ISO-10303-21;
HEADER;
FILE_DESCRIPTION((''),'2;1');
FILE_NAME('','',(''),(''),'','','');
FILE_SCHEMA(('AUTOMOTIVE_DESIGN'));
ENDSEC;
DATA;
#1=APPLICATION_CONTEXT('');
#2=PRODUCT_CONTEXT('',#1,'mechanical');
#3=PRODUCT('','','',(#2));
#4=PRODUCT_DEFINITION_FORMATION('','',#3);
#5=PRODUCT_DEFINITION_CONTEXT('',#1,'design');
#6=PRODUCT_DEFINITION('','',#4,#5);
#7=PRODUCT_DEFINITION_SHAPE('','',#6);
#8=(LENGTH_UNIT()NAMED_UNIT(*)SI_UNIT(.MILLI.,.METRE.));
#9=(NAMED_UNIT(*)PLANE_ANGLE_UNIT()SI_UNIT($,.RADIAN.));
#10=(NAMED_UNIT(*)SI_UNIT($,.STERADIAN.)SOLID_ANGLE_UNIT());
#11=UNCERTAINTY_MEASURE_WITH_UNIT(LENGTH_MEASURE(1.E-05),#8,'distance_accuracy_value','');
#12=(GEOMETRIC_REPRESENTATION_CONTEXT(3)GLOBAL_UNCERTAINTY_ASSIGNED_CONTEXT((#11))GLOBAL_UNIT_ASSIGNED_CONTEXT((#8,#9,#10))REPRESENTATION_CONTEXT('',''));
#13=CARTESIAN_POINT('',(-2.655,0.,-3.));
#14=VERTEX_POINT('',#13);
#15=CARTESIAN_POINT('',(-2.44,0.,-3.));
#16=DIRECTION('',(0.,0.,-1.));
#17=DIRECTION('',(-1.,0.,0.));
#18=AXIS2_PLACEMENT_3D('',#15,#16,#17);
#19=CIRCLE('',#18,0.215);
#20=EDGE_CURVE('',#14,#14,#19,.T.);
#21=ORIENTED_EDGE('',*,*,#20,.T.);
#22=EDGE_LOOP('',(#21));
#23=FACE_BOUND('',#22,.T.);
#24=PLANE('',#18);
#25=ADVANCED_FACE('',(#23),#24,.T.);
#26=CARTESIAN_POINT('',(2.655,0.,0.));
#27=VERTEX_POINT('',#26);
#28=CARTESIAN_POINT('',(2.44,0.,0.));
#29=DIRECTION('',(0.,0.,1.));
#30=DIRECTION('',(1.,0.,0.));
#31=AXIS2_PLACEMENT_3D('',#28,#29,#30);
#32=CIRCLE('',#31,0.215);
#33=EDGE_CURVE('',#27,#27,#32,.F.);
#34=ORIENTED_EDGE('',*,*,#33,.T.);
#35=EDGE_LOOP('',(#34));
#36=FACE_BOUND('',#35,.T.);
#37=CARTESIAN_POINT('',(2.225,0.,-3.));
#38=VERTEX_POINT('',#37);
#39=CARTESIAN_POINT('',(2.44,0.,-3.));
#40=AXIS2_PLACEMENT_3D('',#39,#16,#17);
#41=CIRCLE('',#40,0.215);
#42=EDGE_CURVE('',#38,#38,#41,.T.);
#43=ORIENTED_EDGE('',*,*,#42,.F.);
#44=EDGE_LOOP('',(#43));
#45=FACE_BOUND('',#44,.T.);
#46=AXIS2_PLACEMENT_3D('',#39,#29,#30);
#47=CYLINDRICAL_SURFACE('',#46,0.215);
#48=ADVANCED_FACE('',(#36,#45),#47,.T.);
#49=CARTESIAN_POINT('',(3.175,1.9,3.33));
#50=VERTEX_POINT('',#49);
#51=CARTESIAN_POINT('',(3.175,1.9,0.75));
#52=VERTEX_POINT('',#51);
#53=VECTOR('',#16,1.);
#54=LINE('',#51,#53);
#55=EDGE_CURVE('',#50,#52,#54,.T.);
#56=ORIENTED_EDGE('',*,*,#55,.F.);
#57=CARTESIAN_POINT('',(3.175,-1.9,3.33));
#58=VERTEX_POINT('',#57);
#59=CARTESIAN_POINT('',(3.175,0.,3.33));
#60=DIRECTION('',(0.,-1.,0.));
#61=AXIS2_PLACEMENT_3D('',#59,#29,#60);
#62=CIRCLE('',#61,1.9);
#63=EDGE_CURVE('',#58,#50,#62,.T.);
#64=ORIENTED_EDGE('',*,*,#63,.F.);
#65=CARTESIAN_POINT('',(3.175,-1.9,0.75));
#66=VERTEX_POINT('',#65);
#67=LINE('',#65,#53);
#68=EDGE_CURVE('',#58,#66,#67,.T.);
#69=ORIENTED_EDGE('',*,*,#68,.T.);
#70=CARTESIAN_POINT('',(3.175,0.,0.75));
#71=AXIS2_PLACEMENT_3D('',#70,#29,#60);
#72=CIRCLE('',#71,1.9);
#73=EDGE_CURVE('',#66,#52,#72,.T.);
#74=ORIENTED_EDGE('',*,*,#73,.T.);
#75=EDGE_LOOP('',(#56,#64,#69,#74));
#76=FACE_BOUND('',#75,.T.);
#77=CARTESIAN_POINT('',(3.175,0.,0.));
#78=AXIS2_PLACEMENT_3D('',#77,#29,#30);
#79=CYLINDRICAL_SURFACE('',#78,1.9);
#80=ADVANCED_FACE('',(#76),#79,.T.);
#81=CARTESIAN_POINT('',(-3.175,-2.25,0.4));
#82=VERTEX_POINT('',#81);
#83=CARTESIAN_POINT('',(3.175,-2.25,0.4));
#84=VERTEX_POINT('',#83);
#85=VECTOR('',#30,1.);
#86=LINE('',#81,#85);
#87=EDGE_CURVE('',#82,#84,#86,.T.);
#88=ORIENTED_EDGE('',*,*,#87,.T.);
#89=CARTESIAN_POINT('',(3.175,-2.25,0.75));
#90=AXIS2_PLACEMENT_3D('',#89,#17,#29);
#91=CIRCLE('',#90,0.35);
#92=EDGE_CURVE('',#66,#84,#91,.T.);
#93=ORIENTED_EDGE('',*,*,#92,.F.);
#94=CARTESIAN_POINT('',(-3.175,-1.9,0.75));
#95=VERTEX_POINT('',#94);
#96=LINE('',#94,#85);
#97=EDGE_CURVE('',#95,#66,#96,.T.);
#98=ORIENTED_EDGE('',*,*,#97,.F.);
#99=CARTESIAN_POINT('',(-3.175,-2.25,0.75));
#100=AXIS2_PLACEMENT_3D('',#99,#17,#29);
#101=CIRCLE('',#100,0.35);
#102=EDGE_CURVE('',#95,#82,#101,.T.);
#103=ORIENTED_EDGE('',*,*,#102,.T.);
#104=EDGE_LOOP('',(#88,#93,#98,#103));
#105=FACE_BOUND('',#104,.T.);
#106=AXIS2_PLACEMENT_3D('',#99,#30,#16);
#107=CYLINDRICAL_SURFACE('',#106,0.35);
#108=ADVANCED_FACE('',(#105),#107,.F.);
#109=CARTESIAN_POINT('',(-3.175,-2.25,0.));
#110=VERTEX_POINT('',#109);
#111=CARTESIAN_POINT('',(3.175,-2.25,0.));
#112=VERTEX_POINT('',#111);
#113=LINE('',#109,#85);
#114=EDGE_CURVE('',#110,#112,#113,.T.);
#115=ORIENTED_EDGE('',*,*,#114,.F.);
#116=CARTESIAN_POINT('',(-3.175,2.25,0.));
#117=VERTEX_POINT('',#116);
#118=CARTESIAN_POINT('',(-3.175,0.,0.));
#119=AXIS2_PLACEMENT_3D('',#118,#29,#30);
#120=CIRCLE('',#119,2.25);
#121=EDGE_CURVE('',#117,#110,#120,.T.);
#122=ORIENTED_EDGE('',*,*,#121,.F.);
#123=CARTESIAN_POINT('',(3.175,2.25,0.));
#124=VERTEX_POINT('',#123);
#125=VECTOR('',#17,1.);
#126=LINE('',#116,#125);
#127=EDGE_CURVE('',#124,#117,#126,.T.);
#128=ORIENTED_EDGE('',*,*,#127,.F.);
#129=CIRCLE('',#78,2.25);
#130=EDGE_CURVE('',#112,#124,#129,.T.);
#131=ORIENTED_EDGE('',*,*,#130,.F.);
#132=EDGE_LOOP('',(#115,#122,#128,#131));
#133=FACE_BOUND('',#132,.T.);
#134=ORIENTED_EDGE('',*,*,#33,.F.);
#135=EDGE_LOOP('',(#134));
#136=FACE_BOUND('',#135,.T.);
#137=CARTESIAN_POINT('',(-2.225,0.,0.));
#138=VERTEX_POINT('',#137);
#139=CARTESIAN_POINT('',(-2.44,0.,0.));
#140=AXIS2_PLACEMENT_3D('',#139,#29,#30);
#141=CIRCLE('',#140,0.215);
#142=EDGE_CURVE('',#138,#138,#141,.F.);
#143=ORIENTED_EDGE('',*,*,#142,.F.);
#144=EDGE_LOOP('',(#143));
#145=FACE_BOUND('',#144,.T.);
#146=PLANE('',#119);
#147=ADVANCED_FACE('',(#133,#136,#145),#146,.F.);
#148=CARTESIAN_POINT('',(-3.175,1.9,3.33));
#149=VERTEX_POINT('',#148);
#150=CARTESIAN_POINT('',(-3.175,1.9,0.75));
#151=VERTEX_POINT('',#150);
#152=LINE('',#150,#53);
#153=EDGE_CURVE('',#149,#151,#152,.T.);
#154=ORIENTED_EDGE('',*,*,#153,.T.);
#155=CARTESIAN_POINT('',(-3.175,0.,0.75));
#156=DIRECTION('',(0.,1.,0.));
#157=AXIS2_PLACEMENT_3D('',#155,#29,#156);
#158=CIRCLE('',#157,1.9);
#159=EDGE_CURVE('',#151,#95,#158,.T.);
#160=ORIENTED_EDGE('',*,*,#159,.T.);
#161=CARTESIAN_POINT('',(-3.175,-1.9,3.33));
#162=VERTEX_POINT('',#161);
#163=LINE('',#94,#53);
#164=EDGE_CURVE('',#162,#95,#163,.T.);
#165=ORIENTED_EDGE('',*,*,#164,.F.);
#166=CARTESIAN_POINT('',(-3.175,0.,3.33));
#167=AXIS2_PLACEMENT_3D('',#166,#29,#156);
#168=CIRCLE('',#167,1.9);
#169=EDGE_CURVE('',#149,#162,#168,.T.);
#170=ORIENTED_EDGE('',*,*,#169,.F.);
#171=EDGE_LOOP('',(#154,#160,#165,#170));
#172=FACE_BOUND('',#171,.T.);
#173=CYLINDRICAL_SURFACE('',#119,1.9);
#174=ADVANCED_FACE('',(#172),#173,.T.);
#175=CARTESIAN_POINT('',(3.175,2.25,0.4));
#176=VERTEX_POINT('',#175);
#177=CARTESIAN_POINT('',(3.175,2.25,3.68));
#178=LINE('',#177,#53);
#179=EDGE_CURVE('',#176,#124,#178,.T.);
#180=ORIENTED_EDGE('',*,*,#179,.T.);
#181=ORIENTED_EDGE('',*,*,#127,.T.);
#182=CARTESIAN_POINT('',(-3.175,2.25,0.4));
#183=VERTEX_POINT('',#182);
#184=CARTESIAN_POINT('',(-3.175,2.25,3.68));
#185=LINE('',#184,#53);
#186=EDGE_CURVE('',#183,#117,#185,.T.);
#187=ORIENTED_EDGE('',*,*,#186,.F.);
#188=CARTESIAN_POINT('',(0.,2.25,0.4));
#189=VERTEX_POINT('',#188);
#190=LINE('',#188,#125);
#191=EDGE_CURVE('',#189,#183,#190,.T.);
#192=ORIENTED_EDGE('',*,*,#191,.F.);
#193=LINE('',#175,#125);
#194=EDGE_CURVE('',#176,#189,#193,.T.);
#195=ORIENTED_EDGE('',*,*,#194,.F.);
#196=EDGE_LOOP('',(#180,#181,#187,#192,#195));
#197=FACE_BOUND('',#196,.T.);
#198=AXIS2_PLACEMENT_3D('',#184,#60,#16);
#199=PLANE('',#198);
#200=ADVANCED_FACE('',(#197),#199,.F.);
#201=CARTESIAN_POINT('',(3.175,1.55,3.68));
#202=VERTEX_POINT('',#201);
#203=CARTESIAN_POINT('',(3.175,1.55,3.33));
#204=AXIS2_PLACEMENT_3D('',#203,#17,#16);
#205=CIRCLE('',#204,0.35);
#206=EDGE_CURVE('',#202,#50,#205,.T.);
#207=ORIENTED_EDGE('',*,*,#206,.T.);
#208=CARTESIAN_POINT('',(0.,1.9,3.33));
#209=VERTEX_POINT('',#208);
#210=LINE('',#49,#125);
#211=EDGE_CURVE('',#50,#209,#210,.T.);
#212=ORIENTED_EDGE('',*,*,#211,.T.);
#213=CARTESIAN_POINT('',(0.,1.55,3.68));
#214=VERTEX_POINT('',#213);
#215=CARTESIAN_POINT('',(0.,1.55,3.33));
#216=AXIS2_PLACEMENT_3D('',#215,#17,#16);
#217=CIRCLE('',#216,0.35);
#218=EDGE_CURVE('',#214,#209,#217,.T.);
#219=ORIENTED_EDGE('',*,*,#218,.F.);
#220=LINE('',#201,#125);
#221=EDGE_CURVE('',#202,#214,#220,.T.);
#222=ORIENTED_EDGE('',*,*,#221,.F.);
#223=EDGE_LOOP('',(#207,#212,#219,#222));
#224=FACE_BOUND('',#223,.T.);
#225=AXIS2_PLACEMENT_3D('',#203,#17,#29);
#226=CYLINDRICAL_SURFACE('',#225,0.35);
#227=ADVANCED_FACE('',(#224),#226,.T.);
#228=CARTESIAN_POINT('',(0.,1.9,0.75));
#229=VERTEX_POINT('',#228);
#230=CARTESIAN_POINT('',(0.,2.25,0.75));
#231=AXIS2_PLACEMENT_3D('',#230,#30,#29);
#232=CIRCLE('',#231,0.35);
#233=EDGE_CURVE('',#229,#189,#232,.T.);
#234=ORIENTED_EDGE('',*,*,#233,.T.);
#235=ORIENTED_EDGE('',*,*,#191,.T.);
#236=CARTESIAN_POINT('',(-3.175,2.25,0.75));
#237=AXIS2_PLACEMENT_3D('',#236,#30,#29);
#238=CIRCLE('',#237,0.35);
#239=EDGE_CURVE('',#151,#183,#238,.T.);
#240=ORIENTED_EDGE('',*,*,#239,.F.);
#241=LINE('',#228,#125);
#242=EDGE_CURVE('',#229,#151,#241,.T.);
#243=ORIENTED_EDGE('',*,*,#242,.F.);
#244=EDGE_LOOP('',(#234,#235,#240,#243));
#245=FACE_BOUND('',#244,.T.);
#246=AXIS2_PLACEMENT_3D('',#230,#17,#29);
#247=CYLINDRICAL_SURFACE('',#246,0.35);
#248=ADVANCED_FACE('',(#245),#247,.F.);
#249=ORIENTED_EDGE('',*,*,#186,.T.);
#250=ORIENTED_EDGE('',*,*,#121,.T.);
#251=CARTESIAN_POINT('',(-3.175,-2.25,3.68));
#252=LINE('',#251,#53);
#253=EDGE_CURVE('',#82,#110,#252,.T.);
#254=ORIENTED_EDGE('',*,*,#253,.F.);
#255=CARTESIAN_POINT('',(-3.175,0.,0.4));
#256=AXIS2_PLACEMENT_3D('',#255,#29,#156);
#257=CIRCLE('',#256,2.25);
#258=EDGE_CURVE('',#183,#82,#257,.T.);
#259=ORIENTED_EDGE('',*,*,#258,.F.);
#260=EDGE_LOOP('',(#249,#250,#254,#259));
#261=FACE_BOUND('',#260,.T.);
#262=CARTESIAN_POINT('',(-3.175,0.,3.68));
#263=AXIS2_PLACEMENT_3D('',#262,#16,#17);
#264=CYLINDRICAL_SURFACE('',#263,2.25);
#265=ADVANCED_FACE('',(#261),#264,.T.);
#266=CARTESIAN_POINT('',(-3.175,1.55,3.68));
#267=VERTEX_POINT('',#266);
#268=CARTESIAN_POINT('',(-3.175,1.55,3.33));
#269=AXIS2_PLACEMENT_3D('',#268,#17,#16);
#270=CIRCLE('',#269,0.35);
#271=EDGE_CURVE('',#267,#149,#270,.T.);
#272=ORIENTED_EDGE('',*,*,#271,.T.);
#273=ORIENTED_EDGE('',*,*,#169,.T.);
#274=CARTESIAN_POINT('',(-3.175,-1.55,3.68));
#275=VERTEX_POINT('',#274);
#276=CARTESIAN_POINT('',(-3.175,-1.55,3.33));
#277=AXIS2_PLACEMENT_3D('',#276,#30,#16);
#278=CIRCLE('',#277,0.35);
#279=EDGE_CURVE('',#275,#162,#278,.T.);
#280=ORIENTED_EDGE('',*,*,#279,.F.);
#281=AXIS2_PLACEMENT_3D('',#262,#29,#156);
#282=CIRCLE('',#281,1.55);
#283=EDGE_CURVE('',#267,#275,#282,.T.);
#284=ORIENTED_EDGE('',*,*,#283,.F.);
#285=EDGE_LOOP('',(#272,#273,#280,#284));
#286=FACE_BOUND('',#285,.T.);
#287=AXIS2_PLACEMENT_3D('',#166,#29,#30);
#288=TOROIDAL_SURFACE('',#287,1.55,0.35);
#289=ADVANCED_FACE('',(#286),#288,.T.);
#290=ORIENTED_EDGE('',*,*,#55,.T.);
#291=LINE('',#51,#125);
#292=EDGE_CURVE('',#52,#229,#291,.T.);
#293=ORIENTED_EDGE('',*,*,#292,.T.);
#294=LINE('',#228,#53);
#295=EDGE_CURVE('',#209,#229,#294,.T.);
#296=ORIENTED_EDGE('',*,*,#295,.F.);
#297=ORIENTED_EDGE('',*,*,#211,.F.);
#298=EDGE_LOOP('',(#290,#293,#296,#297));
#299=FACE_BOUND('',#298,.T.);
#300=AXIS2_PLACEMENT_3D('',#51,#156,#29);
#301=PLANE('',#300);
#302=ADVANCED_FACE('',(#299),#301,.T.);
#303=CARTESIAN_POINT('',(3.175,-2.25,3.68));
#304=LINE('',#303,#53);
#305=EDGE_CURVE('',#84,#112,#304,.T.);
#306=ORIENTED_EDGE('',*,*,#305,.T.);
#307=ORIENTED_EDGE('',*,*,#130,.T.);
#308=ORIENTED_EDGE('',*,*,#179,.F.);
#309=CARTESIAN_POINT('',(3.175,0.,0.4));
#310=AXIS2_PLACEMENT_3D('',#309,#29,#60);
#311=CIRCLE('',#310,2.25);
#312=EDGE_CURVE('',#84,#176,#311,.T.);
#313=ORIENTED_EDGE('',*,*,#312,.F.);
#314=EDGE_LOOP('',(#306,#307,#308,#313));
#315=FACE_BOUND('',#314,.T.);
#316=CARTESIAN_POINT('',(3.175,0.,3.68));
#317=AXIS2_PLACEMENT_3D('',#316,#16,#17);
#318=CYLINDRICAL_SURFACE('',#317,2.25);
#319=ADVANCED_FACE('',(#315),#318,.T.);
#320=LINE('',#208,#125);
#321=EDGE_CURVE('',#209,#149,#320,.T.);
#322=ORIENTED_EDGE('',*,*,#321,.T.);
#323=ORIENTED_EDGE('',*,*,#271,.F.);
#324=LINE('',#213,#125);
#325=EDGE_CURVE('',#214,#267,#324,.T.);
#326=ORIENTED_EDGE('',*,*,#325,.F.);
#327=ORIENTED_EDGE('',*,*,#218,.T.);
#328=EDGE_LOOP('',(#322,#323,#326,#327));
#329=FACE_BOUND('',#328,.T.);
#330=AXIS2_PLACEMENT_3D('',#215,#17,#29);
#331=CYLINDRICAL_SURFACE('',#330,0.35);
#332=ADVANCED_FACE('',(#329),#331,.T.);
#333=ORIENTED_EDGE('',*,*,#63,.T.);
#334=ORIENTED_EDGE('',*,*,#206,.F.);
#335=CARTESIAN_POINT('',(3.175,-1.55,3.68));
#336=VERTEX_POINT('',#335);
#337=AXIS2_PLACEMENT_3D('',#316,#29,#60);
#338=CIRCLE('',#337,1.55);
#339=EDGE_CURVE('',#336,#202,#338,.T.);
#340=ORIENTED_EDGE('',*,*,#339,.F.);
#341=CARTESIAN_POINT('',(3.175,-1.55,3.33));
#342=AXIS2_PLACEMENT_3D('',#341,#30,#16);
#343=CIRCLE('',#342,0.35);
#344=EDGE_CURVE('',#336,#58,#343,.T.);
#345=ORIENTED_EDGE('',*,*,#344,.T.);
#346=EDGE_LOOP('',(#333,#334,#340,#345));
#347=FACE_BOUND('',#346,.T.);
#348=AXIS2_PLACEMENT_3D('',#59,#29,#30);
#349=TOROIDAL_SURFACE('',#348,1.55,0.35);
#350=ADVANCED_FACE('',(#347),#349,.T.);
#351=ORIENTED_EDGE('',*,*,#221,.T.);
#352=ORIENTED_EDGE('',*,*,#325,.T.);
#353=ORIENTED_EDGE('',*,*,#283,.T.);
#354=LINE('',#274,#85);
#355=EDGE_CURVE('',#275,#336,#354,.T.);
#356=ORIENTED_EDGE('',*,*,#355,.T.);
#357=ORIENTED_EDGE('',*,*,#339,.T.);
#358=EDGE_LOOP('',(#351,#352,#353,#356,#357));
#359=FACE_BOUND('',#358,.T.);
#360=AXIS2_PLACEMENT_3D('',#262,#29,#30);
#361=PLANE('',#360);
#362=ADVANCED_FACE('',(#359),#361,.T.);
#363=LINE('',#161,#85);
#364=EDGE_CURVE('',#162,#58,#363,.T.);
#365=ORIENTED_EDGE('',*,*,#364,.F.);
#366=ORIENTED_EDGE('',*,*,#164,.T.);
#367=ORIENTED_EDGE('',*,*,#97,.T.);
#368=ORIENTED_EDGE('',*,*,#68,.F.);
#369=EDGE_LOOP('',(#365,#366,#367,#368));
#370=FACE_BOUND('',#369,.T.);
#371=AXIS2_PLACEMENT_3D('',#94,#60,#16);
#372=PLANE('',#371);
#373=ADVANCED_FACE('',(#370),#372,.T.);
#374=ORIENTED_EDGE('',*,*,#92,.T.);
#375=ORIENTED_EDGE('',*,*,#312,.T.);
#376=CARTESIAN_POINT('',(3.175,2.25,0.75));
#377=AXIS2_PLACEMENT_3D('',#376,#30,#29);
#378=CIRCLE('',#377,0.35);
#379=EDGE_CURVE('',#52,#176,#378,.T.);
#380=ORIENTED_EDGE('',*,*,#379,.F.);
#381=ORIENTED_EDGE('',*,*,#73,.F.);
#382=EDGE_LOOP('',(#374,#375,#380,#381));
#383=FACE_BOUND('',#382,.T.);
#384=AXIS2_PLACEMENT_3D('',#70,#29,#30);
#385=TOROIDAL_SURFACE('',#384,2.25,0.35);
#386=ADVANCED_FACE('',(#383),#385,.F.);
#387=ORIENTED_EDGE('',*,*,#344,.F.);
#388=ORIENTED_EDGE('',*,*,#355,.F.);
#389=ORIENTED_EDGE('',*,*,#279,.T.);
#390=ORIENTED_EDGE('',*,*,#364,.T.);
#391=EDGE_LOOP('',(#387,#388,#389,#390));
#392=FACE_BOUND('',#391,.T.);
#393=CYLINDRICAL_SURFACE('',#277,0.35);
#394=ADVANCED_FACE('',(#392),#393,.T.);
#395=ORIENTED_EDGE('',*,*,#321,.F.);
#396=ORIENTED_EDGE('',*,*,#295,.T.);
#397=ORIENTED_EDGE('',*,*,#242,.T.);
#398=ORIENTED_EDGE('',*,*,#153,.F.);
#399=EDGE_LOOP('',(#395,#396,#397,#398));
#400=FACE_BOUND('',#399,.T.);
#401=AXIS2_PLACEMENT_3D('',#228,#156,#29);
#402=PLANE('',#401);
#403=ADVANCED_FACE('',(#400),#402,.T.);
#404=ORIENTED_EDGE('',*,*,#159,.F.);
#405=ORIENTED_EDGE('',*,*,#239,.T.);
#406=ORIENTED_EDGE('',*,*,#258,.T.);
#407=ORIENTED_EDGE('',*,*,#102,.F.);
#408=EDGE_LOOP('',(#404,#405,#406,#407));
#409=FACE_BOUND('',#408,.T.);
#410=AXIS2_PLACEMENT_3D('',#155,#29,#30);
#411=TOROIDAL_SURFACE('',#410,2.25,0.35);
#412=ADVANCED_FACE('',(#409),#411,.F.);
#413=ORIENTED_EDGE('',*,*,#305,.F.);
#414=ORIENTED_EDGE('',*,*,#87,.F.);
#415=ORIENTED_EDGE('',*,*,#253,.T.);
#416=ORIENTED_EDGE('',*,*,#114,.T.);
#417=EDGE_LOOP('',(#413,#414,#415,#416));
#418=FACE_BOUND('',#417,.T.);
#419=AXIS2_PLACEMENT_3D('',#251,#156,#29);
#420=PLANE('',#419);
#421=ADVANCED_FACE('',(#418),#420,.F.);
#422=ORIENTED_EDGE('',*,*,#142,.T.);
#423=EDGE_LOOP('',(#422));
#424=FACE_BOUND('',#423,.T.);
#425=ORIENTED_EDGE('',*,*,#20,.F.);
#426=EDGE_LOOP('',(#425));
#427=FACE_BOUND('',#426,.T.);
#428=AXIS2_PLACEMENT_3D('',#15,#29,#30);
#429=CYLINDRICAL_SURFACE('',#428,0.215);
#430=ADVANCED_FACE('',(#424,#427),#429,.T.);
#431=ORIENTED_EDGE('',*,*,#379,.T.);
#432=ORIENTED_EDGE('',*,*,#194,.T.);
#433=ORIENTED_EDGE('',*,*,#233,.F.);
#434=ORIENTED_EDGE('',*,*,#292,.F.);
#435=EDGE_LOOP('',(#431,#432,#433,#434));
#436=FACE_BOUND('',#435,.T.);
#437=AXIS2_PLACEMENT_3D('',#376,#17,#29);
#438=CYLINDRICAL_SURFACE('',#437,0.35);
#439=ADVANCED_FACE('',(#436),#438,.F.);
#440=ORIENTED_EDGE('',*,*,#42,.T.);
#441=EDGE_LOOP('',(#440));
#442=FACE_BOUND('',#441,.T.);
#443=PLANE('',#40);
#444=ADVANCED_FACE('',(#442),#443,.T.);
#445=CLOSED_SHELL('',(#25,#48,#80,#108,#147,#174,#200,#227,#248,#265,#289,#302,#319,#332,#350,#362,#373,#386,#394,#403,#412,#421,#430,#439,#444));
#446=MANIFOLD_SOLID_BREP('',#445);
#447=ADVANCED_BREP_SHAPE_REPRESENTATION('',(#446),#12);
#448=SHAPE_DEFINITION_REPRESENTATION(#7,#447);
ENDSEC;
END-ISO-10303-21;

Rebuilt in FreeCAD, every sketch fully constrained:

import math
import FreeCAD as App
import Part
import Sketcher

doc = App.newDocument("Part")
body = doc.addObject("PartDesign::Body", "Body")

sketch1 = body.newObject("Sketcher::SketchObject", "Sketch")
sketch1.AttachmentSupport = (doc.getObject("XY_Plane"), [""])
sketch1.MapMode = "FlatFace"
sketch1.addGeometry(Part.LineSegment(App.Vector(3.175, 2.25, 0), App.Vector(-3.175, 2.25, 0)), False)
sketch1.addGeometry(Part.ArcOfCircle(Part.Circle(App.Vector(-3.175, 0, 0), App.Vector(0, 0, 1), 2.25), math.radians(90), math.radians(270)), False)
sketch1.addGeometry(Part.LineSegment(App.Vector(-3.175, -2.25, 0), App.Vector(3.175, -2.25, 0)), False)
sketch1.addGeometry(Part.ArcOfCircle(Part.Circle(App.Vector(3.175, 0, 0), App.Vector(0, 0, 1), 2.25), math.radians(-90), math.radians(90)), False)
sketch1.addConstraint(Sketcher.Constraint("Tangent", 0, 2, 1, 1))
sketch1.addConstraint(Sketcher.Constraint("Tangent", 1, 2, 2, 1))
sketch1.addConstraint(Sketcher.Constraint("Tangent", 2, 2, 3, 1))
sketch1.addConstraint(Sketcher.Constraint("Tangent", 3, 2, 0, 1))
sketch1.addConstraint(Sketcher.Constraint("Horizontal", 0))
sketch1.addConstraint(Sketcher.Constraint("Horizontal", 2))
sketch1.addConstraint(Sketcher.Constraint("Symmetric", 1, 3, 3, 3, -1, 1))
sketch1.addConstraint(Sketcher.Constraint("Radius", 1, 2.25))
sketch1.addConstraint(Sketcher.Constraint("DistanceX", 0, 2, 0, 1, 6.35))
pad1 = body.newObject("PartDesign::Pad", "Pad")
pad1.Profile = sketch1
pad1.Length = 3.68

sketch2 = body.newObject("Sketcher::SketchObject", "Sketch001")
sketch2.AttachmentSupport = (doc.getObject("YZ_Plane"), [""])
sketch2.MapMode = "FlatFace"
sketch2.addGeometry(Part.LineSegment(App.Vector(1.9, 3.33, 0), App.Vector(1.9, 0.75, 0)), False)
sketch2.addGeometry(Part.ArcOfCircle(Part.Circle(App.Vector(2.25, 0.75, 0), App.Vector(0, 0, 1), 0.35), math.radians(-180), math.radians(-90)), False)
sketch2.addGeometry(Part.LineSegment(App.Vector(2.25, 0.4, 0), App.Vector(2.25, 3.68, 0)), False)
sketch2.addGeometry(Part.LineSegment(App.Vector(2.25, 3.68, 0), App.Vector(1.55, 3.68, 0)), False)
sketch2.addGeometry(Part.ArcOfCircle(Part.Circle(App.Vector(1.55, 3.33, 0), App.Vector(0, 0, 1), 0.35), math.radians(0), math.radians(90)), False)
sketch2.addConstraint(Sketcher.Constraint("Tangent", 0, 2, 1, 1))
sketch2.addConstraint(Sketcher.Constraint("Coincident", 1, 2, 2, 1))
sketch2.addConstraint(Sketcher.Constraint("Coincident", 2, 2, 3, 1))
sketch2.addConstraint(Sketcher.Constraint("Tangent", 3, 2, 4, 2))
sketch2.addConstraint(Sketcher.Constraint("Tangent", 4, 1, 0, 1))
sketch2.addConstraint(Sketcher.Constraint("Vertical", 0))
sketch2.addConstraint(Sketcher.Constraint("Vertical", 2))
sketch2.addConstraint(Sketcher.Constraint("Horizontal", 3))
sketch2.addConstraint(Sketcher.Constraint("Equal", 1, 4))
sketch2.addConstraint(Sketcher.Constraint("Radius", 1, 0.35))
sketch2.addConstraint(Sketcher.Constraint("DistanceX", 3, 2, 3, 1, 0.7))
sketch2.addConstraint(Sketcher.Constraint("DistanceY", 0, 2, 0, 1, 2.58))
sketch2.addConstraint(Sketcher.Constraint("DistanceX", -1, 1, 0, 2, 1.9))
sketch2.addConstraint(Sketcher.Constraint("DistanceY", -1, 1, 1, 2, 0.4))

sketch3 = body.newObject("Sketcher::SketchObject", "Sketch002")
sketch3.AttachmentSupport = (doc.getObject("XY_Plane"), [""])
sketch3.MapMode = "FlatFace"
sketch3.addGeometry(Part.LineSegment(App.Vector(-3.175, 2.25, 0), App.Vector(3.175, 2.25, 0)), False)
sketch3.addGeometry(Part.ArcOfCircle(Part.Circle(App.Vector(3.175, 0, 0), App.Vector(0, 0, 1), 2.25), math.radians(-90), math.radians(90)), False)
sketch3.addGeometry(Part.LineSegment(App.Vector(3.175, -2.25, 0), App.Vector(-3.175, -2.25, 0)), False)
sketch3.addGeometry(Part.ArcOfCircle(Part.Circle(App.Vector(-3.175, 0, 0), App.Vector(0, 0, 1), 2.25), math.radians(90), math.radians(270)), False)
sketch3.addConstraint(Sketcher.Constraint("Tangent", 0, 2, 1, 2))
sketch3.addConstraint(Sketcher.Constraint("Tangent", 1, 1, 2, 1))
sketch3.addConstraint(Sketcher.Constraint("Tangent", 2, 2, 3, 2))
sketch3.addConstraint(Sketcher.Constraint("Tangent", 3, 1, 0, 1))
sketch3.addConstraint(Sketcher.Constraint("Horizontal", 0))
sketch3.addConstraint(Sketcher.Constraint("Horizontal", 2))
sketch3.addConstraint(Sketcher.Constraint("Symmetric", 1, 3, 3, 3, -1, 1))
sketch3.addConstraint(Sketcher.Constraint("Radius", 1, 2.25))
sketch3.addConstraint(Sketcher.Constraint("DistanceX", 0, 1, 0, 2, 6.35))
doc.recompute()

subtractivepipe = body.newObject("PartDesign::SubtractivePipe", "SubtractivePipe")
subtractivepipe.Profile = sketch2
subtractivepipe.Spine = (sketch3, ["Edge1", "Edge2", "Edge3", "Edge4"])

sketch4 = body.newObject("Sketcher::SketchObject", "Sketch003")
sketch4.AttachmentSupport = (doc.getObject("XY_Plane"), [""])
sketch4.MapMode = "FlatFace"
sketch4.addGeometry(Part.Circle(App.Vector(2.44, 0, 0), App.Vector(0, 0, 1), 0.215), False)
sketch4.addGeometry(Part.Circle(App.Vector(-2.44, 0, 0), App.Vector(0, 0, 1), 0.215), False)
sketch4.addConstraint(Sketcher.Constraint("Equal", 0, 1))
sketch4.addConstraint(Sketcher.Constraint("Symmetric", 0, 3, 1, 3, -1, 1))
sketch4.addConstraint(Sketcher.Constraint("PointOnObject", 0, 3, -1))
sketch4.addConstraint(Sketcher.Constraint("Diameter", 0, 0.43))
sketch4.addConstraint(Sketcher.Constraint("DistanceX", -1, 1, 0, 3, 2.44))
pad2 = body.newObject("PartDesign::Pad", "Pad001")
pad2.Profile = sketch4
pad2.Length = 3
pad2.Reversed = True

doc.recompute()
